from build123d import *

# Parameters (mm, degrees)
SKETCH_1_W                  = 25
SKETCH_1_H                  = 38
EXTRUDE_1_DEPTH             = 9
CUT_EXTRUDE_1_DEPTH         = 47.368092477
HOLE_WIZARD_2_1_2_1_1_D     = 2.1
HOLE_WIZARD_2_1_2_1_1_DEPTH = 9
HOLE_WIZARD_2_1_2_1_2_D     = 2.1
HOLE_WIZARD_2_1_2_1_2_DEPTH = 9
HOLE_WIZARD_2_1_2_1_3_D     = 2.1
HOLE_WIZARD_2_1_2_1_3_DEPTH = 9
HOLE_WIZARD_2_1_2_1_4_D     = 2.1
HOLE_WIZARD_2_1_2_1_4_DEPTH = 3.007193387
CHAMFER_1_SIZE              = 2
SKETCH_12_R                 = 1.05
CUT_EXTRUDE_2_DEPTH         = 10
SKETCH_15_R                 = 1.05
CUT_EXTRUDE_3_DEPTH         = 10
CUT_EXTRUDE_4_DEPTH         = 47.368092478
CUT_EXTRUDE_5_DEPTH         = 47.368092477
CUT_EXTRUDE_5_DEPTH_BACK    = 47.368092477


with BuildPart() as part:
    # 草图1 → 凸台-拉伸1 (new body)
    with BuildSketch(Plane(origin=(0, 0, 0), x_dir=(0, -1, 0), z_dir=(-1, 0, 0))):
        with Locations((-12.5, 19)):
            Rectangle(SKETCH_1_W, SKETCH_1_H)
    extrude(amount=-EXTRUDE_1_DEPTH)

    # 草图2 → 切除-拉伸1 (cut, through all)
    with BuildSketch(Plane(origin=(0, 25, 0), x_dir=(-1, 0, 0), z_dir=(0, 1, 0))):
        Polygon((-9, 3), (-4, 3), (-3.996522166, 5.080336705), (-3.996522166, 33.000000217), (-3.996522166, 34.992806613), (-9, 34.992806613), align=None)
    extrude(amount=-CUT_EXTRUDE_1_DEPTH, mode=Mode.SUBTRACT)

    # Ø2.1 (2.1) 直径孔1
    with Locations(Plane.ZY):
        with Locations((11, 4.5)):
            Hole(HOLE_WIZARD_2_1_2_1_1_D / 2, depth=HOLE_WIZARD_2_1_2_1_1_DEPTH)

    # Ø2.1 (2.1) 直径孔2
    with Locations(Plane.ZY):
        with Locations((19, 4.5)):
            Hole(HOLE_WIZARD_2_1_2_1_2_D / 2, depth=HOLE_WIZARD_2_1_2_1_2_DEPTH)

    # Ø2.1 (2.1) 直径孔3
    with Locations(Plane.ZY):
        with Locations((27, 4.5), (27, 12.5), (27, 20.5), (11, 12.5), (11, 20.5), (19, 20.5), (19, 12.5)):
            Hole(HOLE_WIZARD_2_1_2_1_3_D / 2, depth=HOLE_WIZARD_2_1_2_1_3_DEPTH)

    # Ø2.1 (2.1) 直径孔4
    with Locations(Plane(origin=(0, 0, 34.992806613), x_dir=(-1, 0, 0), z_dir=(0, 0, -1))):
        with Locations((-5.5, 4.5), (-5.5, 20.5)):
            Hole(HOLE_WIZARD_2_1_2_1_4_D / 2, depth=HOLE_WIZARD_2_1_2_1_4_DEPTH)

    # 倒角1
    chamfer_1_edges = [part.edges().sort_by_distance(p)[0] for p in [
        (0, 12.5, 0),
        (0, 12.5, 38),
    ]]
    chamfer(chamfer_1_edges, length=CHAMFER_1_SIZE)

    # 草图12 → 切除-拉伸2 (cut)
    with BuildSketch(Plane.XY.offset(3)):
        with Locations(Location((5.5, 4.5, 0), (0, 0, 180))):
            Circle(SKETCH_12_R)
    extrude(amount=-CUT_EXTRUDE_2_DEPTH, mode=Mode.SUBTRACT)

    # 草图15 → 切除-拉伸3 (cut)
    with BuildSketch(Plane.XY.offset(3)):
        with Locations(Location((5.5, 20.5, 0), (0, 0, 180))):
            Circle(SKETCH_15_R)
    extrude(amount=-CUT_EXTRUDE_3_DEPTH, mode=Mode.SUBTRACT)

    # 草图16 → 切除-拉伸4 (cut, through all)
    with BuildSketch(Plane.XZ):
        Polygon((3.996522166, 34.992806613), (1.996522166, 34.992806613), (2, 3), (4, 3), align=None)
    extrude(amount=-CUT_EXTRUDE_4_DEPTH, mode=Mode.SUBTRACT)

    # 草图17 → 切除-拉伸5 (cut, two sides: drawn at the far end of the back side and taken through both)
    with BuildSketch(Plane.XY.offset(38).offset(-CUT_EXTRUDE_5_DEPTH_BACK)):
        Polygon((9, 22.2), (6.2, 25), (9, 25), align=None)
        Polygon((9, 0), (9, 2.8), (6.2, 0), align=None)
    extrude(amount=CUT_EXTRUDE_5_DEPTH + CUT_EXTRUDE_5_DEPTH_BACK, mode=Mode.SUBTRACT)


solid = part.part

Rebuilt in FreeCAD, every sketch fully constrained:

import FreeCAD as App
import Part
import Sketcher
Q = App.Units.Quantity


def edges_at(feature, points):
    """Names of the edges that pass closest to the given points."""
    edges = feature.Shape.Edges
    near = lambda p: min(range(len(edges)), key=lambda i: edges[i].distToShape(Part.Vertex(*p))[0])
    return sorted({f"Edge{near(p) + 1}" for p in points})


def add_polygon(sketch, points):
    """Adds a closed chain of lines whose ends are joined by coincident constraints."""
    first, n = sketch.GeometryCount, len(points)
    for a, b in zip(points, points[1:] + points[:1]):
        sketch.addGeometry(Part.LineSegment(App.Vector(*a, 0), App.Vector(*b, 0)), False)
    for i in range(n):
        sketch.addConstraint(Sketcher.Constraint("Coincident", first + i, 2, first + (i + 1) % n, 1))

doc = App.newDocument("Part")
body = doc.addObject("PartDesign::Body", "Body")

# Sketch on YZ plane
sketch1 = body.newObject("Sketcher::SketchObject", "Sketch")
sketch1.AttachmentSupport = (doc.getObject("YZ_Plane"), [""])
sketch1.MapMode = "FlatFace"
add_polygon(sketch1, [(25, 38), (25, 0), (0, 0), (0, 38)])  # lines 0-3
sketch1.addConstraint([
    Sketcher.Constraint("Vertical", 0),
    Sketcher.Constraint("Horizontal", 1),
    Sketcher.Constraint("Vertical", 2),
    Sketcher.Constraint("Horizontal", 3),
    Sketcher.Constraint("Coincident", 1, 2, -1, 1),
    Sketcher.Constraint("DistanceX", 1, 2, 1, 1, Q("25 mm")),
    Sketcher.Constraint("DistanceY", 0, 2, 0, 1, Q("38 mm")),
])
pad1 = body.newObject("PartDesign::Pad", "Pad")
pad1.Profile = sketch1
pad1.Length = 9

# Sketch on XZ plane
sketch2 = body.newObject("Sketcher::SketchObject", "Sketch001")
sketch2.AttachmentSupport = (doc.getObject("XZ_Plane"), [""])
sketch2.MapMode = "FlatFace"
sketch2.AttachmentOffset = App.Placement(App.Vector(0, 0, -25), App.Rotation())
add_polygon(sketch2, [(9, 3), (4, 3), (4, 5.1), (4, 35), (9, 35)])  # lines 0-4
sketch2.addConstraint([
    Sketcher.Constraint("Horizontal", 0),
    Sketcher.Constraint("Vertical", 2),
    Sketcher.Constraint("Horizontal", 3),
    Sketcher.Constraint("Vertical", 4),
    Sketcher.Constraint("DistanceX", 0, 2, 0, 1, Q("5 mm")),
    Sketcher.Constraint("DistanceX", -1, 1, 0, 2, Q("4 mm")),
    Sketcher.Constraint("DistanceY", -1, 1, 0, 2, Q("3 mm")),
    Sketcher.Constraint("DistanceY", 2, 1, 2, 2, Q("29.91247 mm")),
    Sketcher.Constraint("Distance", 1, Q("2.08034 mm")),
    Sketcher.Constraint("DistanceX", 3, 1, 3, 2, Q("5.003478 mm")),
])
pocket1 = body.newObject("PartDesign::Pocket", "Pocket")
pocket1.Profile = sketch2
pocket1.Type = "ThroughAll"
pocket1.Reversed = True

# Sketch on YZ plane
sketch3 = body.newObject("Sketcher::SketchObject", "Sketch002")
sketch3.AttachmentSupport = (doc.getObject("YZ_Plane"), [""])
sketch3.MapMode = "FlatFace"
sketch3.addGeometry(Part.Circle(App.Vector(4.5, 11, 0), App.Vector(0, 0, 1), 1.1), False)
sketch3.addConstraint([
    Sketcher.Constraint("Diameter", 0, Q("2.1 mm")),
    Sketcher.Constraint("DistanceY", -1, 1, 0, 3, Q("11 mm")),
    Sketcher.Constraint("DistanceX", -1, 1, 0, 3, Q("4.5 mm")),
])
doc.recompute()
hole = body.newObject("PartDesign::Hole", "Hole")
hole.Profile = sketch3
hole.ThreadType = "None"
hole.Diameter = 2.1
hole.DepthType = "Dimension"
hole.Depth = 9
hole.DrillPoint = "Flat"
hole.Reversed = True

# Sketch on YZ plane
sketch4 = body.newObject("Sketcher::SketchObject", "Sketch003")
sketch4.AttachmentSupport = (doc.getObject("YZ_Plane"), [""])
sketch4.MapMode = "FlatFace"
sketch4.addGeometry(Part.Circle(App.Vector(4.5, 19, 0), App.Vector(0, 0, 1), 1.1), False)
sketch4.addConstraint([
    Sketcher.Constraint("Diameter", 0, Q("2.1 mm")),
    Sketcher.Constraint("DistanceY", -1, 1, 0, 3, Q("19 mm")),
    Sketcher.Constraint("DistanceX", -1, 1, 0, 3, Q("4.5 mm")),
])
doc.recompute()
hole2 = body.newObject("PartDesign::Hole", "Hole001")
hole2.Profile = sketch4
hole2.ThreadType = "None"
hole2.Diameter = 2.1
hole2.DepthType = "Dimension"
hole2.Depth = 9
hole2.DrillPoint = "Flat"
hole2.Reversed = True

# Sketch on YZ plane
sketch5 = body.newObject("Sketcher::SketchObject", "Sketch004")
sketch5.AttachmentSupport = (doc.getObject("YZ_Plane"), [""])
sketch5.MapMode = "FlatFace"
sketch5.addGeometry([
    Part.Circle(App.Vector(4.5, 27, 0), App.Vector(0, 0, 1), 1.1),  # 0
    Part.Circle(App.Vector(12.5, 27, 0), App.Vector(0, 0, 1), 1.1),  # 1
    Part.Circle(App.Vector(20.5, 27, 0), App.Vector(0, 0, 1), 1.1),  # 2
    Part.Circle(App.Vector(12.5, 11, 0), App.Vector(0, 0, 1), 1.1),  # 3
    Part.Circle(App.Vector(20.5, 11, 0), App.Vector(0, 0, 1), 1.1),  # 4
    Part.Circle(App.Vector(20.5, 19, 0), App.Vector(0, 0, 1), 1.1),  # 5
    Part.Circle(App.Vector(12.5, 19, 0), App.Vector(0, 0, 1), 1.1),  # 6
], False)
sketch5.addConstraint([
    Sketcher.Constraint("Equal", 0, 1),
    Sketcher.Constraint("Equal", 1, 2),
    Sketcher.Constraint("Equal", 2, 3),
    Sketcher.Constraint("Equal", 3, 4),
    Sketcher.Constraint("Equal", 4, 5),
    Sketcher.Constraint("Equal", 5, 6),
    Sketcher.Constraint("Horizontal", 0, 3, 1, 3),
    Sketcher.Constraint("Horizontal", 1, 3, 2, 3),
    Sketcher.Constraint("Horizontal", 3, 3, 4, 3),
    Sketcher.Constraint("Horizontal", 5, 3, 6, 3),
    Sketcher.Constraint("Vertical", 1, 3, 3, 3),
    Sketcher.Constraint("Vertical", 2, 3, 4, 3),
    Sketcher.Constraint("Vertical", 4, 3, 5, 3),
    Sketcher.Constraint("Vertical", 3, 3, 6, 3),
    Sketcher.Constraint("Diameter", 0, Q("2.1 mm")),
    Sketcher.Constraint("DistanceY", -1, 1, 0, 3, Q("27 mm")),
    Sketcher.Constraint("DistanceY", -1, 1, 3, 3, Q("11 mm")),
    Sketcher.Constraint("DistanceY", -1, 1, 5, 3, Q("19 mm")),
    Sketcher.Constraint("DistanceX", 0, 3, 1, 3, Q("8 mm")),
    Sketcher.Constraint("DistanceX", 1, 3, 2, 3, Q("8 mm")),
    Sketcher.Constraint("DistanceX", -1, 1, 0, 3, Q("4.5 mm")),
])
doc.recompute()
hole3 = body.newObject("PartDesign::Hole", "Hole002")
hole3.Profile = sketch5
hole3.ThreadType = "None"
hole3.Diameter = 2.1
hole3.DepthType = "Dimension"
hole3.Depth = 9
hole3.DrillPoint = "Flat"
hole3.Reversed = True

# Sketch on XY plane
sketch6 = body.newObject("Sketcher::SketchObject", "Sketch005")
sketch6.AttachmentSupport = (doc.getObject("XY_Plane"), [""])
sketch6.MapMode = "FlatFace"
sketch6.AttachmentOffset = App.Placement(App.Vector(0, 0, 34.992807), App.Rotation())
sketch6.addGeometry([
    Part.Circle(App.Vector(5.5, 4.5, 0), App.Vector(0, 0, 1), 1.1),
    Part.Circle(App.Vector(5.5, 20.5, 0), App.Vector(0, 0, 1), 1.1),
], False)
sketch6.addConstraint([
    Sketcher.Constraint("Equal", 0, 1),
    Sketcher.Constraint("Vertical", 0, 3, 1, 3),
    Sketcher.Constraint("Diameter", 0, Q("2.1 mm")),
    Sketcher.Constraint("DistanceY", 0, 3, 1, 3, Q("16 mm")),
    Sketcher.Constraint("DistanceX", -1, 1, 0, 3, Q("5.5 mm")),
    Sketcher.Constraint("DistanceY", -1, 1, 0, 3, Q("4.5 mm")),
])
doc.recompute()
hole4 = body.newObject("PartDesign::Hole", "Hole003")
hole4.Profile = sketch6
hole4.ThreadType = "None"
hole4.Diameter = 2.1
hole4.DepthType = "Dimension"
hole4.Depth = 3.007193
hole4.DrillPoint = "Flat"
hole4.Reversed = True
doc.recompute()

chamfer = body.newObject("PartDesign::Chamfer", "Chamfer")
chamfer.Base = (hole4, edges_at(hole4, [(0, 12.5, 0), (0, 12.5, 38)]))
chamfer.Size = 2

# Sketch on XY plane
sketch7 = body.newObject("Sketcher::SketchObject", "Sketch006")
sketch7.AttachmentSupport = (doc.getObject("XY_Plane"), [""])
sketch7.MapMode = "FlatFace"
sketch7.AttachmentOffset = App.Placement(App.Vector(0, 0, 3), App.Rotation())
sketch7.addGeometry(Part.Circle(App.Vector(5.5, 4.5, 0), App.Vector(0, 0, 1), 1.1), False)
sketch7.addConstraint([
    Sketcher.Constraint("Diameter", 0, Q("2.1 mm")),
    Sketcher.Constraint("DistanceX", -1, 1, 0, 3, Q("5.5 mm")),
    Sketcher.Constraint("DistanceY", -1, 1, 0, 3, Q("4.5 mm")),
])
pocket2 = body.newObject("PartDesign::Pocket", "Pocket001")
pocket2.Profile = sketch7
pocket2.Length = 10

# Sketch on XY plane
sketch8 = body.newObject("Sketcher::SketchObject", "Sketch007")
sketch8.AttachmentSupport = (doc.getObject("XY_Plane"), [""])
sketch8.MapMode = "FlatFace"
sketch8.AttachmentOffset = App.Placement(App.Vector(0, 0, 3), App.Rotation())
sketch8.addGeometry(Part.Circle(App.Vector(5.5, 20.5, 0), App.Vector(0, 0, 1), 1.1), False)
sketch8.addConstraint([
    Sketcher.Constraint("Diameter", 0, Q("2.1 mm")),
    Sketcher.Constraint("DistanceX", -1, 1, 0, 3, Q("5.5 mm")),
    Sketcher.Constraint("DistanceY", -1, 1, 0, 3, Q("20.5 mm")),
])
pocket3 = body.newObject("PartDesign::Pocket", "Pocket002")
pocket3.Profile = sketch8
pocket3.Length = 10

# Sketch on XZ plane
sketch9 = body.newObject("Sketcher::SketchObject", "Sketch008")
sketch9.AttachmentSupport = (doc.getObject("XZ_Plane"), [""])
sketch9.MapMode = "FlatFace"
add_polygon(sketch9, [(4, 35), (2, 35), (2, 3), (4, 3)])  # lines 0-3
sketch9.addConstraint([
    Sketcher.Constraint("Horizontal", 0),
    Sketcher.Constraint("Horizontal", 2),
    Sketcher.Constraint("Parallel", 1, 3),
    Sketcher.Constraint("DistanceX", 0, 2, 0, 1, Q("2 mm")),
    Sketcher.Constraint("DistanceX", -1, 1, 1, 2, Q("2 mm")),
    Sketcher.Constraint("DistanceY", -1, 1, 1, 2, Q("3 mm")),
    Sketcher.Constraint("Distance", 1, Q("31.992807 mm")),
    Sketcher.Constraint("DistanceX", -1, 1, 0, 2, Q("1.996522 mm")),
])
pocket4 = body.newObject("PartDesign::Pocket", "Pocket003")
pocket4.Profile = sketch9
pocket4.Type = "ThroughAll"

# Sketch on XY plane
sketch10 = body.newObject("Sketcher::SketchObject", "Sketch009")
sketch10.AttachmentSupport = (doc.getObject("XY_Plane"), [""])
sketch10.MapMode = "FlatFace"
sketch10.AttachmentOffset = App.Placement(App.Vector(0, 0, 38), App.Rotation())
add_polygon(sketch10, [(6.2, 25), (9, 22.2), (9, 25)])  # lines 0-2
add_polygon(sketch10, [(9, 0), (9, 2.8), (6.2, 0)])  # lines 3-5
sketch10.addConstraint([
    Sketcher.Constraint("Vertical", 1),
    Sketcher.Constraint("Horizontal", 2),
    Sketcher.Constraint("Vertical", 3),
    Sketcher.Constraint("Horizontal", 5),
    Sketcher.Constraint("PointOnObject", 4, 2, -1),
    Sketcher.Constraint("Perpendicular", 0, 4),
    Sketcher.Constraint("Vertical", 1, 2, 3, 2),
    Sketcher.Constraint("Vertical", 2, 2, 4, 2),
    Sketcher.Constraint("Equal", 5, 1),
    Sketcher.Constraint("DistanceX", 2, 2, 2, 1, Q("2.8 mm")),
    Sketcher.Constraint("DistanceX", -1, 1, 0, 2, Q("9 mm")),
    Sketcher.Constraint("DistanceY", -1, 1, 1, 2, Q("25 mm")),
])
pocket5 = body.newObject("PartDesign::Pocket", "Pocket004")
pocket5.Profile = sketch10
pocket5.Type = "ThroughAll"
pocket5.Midplane = True

doc.recompute()
